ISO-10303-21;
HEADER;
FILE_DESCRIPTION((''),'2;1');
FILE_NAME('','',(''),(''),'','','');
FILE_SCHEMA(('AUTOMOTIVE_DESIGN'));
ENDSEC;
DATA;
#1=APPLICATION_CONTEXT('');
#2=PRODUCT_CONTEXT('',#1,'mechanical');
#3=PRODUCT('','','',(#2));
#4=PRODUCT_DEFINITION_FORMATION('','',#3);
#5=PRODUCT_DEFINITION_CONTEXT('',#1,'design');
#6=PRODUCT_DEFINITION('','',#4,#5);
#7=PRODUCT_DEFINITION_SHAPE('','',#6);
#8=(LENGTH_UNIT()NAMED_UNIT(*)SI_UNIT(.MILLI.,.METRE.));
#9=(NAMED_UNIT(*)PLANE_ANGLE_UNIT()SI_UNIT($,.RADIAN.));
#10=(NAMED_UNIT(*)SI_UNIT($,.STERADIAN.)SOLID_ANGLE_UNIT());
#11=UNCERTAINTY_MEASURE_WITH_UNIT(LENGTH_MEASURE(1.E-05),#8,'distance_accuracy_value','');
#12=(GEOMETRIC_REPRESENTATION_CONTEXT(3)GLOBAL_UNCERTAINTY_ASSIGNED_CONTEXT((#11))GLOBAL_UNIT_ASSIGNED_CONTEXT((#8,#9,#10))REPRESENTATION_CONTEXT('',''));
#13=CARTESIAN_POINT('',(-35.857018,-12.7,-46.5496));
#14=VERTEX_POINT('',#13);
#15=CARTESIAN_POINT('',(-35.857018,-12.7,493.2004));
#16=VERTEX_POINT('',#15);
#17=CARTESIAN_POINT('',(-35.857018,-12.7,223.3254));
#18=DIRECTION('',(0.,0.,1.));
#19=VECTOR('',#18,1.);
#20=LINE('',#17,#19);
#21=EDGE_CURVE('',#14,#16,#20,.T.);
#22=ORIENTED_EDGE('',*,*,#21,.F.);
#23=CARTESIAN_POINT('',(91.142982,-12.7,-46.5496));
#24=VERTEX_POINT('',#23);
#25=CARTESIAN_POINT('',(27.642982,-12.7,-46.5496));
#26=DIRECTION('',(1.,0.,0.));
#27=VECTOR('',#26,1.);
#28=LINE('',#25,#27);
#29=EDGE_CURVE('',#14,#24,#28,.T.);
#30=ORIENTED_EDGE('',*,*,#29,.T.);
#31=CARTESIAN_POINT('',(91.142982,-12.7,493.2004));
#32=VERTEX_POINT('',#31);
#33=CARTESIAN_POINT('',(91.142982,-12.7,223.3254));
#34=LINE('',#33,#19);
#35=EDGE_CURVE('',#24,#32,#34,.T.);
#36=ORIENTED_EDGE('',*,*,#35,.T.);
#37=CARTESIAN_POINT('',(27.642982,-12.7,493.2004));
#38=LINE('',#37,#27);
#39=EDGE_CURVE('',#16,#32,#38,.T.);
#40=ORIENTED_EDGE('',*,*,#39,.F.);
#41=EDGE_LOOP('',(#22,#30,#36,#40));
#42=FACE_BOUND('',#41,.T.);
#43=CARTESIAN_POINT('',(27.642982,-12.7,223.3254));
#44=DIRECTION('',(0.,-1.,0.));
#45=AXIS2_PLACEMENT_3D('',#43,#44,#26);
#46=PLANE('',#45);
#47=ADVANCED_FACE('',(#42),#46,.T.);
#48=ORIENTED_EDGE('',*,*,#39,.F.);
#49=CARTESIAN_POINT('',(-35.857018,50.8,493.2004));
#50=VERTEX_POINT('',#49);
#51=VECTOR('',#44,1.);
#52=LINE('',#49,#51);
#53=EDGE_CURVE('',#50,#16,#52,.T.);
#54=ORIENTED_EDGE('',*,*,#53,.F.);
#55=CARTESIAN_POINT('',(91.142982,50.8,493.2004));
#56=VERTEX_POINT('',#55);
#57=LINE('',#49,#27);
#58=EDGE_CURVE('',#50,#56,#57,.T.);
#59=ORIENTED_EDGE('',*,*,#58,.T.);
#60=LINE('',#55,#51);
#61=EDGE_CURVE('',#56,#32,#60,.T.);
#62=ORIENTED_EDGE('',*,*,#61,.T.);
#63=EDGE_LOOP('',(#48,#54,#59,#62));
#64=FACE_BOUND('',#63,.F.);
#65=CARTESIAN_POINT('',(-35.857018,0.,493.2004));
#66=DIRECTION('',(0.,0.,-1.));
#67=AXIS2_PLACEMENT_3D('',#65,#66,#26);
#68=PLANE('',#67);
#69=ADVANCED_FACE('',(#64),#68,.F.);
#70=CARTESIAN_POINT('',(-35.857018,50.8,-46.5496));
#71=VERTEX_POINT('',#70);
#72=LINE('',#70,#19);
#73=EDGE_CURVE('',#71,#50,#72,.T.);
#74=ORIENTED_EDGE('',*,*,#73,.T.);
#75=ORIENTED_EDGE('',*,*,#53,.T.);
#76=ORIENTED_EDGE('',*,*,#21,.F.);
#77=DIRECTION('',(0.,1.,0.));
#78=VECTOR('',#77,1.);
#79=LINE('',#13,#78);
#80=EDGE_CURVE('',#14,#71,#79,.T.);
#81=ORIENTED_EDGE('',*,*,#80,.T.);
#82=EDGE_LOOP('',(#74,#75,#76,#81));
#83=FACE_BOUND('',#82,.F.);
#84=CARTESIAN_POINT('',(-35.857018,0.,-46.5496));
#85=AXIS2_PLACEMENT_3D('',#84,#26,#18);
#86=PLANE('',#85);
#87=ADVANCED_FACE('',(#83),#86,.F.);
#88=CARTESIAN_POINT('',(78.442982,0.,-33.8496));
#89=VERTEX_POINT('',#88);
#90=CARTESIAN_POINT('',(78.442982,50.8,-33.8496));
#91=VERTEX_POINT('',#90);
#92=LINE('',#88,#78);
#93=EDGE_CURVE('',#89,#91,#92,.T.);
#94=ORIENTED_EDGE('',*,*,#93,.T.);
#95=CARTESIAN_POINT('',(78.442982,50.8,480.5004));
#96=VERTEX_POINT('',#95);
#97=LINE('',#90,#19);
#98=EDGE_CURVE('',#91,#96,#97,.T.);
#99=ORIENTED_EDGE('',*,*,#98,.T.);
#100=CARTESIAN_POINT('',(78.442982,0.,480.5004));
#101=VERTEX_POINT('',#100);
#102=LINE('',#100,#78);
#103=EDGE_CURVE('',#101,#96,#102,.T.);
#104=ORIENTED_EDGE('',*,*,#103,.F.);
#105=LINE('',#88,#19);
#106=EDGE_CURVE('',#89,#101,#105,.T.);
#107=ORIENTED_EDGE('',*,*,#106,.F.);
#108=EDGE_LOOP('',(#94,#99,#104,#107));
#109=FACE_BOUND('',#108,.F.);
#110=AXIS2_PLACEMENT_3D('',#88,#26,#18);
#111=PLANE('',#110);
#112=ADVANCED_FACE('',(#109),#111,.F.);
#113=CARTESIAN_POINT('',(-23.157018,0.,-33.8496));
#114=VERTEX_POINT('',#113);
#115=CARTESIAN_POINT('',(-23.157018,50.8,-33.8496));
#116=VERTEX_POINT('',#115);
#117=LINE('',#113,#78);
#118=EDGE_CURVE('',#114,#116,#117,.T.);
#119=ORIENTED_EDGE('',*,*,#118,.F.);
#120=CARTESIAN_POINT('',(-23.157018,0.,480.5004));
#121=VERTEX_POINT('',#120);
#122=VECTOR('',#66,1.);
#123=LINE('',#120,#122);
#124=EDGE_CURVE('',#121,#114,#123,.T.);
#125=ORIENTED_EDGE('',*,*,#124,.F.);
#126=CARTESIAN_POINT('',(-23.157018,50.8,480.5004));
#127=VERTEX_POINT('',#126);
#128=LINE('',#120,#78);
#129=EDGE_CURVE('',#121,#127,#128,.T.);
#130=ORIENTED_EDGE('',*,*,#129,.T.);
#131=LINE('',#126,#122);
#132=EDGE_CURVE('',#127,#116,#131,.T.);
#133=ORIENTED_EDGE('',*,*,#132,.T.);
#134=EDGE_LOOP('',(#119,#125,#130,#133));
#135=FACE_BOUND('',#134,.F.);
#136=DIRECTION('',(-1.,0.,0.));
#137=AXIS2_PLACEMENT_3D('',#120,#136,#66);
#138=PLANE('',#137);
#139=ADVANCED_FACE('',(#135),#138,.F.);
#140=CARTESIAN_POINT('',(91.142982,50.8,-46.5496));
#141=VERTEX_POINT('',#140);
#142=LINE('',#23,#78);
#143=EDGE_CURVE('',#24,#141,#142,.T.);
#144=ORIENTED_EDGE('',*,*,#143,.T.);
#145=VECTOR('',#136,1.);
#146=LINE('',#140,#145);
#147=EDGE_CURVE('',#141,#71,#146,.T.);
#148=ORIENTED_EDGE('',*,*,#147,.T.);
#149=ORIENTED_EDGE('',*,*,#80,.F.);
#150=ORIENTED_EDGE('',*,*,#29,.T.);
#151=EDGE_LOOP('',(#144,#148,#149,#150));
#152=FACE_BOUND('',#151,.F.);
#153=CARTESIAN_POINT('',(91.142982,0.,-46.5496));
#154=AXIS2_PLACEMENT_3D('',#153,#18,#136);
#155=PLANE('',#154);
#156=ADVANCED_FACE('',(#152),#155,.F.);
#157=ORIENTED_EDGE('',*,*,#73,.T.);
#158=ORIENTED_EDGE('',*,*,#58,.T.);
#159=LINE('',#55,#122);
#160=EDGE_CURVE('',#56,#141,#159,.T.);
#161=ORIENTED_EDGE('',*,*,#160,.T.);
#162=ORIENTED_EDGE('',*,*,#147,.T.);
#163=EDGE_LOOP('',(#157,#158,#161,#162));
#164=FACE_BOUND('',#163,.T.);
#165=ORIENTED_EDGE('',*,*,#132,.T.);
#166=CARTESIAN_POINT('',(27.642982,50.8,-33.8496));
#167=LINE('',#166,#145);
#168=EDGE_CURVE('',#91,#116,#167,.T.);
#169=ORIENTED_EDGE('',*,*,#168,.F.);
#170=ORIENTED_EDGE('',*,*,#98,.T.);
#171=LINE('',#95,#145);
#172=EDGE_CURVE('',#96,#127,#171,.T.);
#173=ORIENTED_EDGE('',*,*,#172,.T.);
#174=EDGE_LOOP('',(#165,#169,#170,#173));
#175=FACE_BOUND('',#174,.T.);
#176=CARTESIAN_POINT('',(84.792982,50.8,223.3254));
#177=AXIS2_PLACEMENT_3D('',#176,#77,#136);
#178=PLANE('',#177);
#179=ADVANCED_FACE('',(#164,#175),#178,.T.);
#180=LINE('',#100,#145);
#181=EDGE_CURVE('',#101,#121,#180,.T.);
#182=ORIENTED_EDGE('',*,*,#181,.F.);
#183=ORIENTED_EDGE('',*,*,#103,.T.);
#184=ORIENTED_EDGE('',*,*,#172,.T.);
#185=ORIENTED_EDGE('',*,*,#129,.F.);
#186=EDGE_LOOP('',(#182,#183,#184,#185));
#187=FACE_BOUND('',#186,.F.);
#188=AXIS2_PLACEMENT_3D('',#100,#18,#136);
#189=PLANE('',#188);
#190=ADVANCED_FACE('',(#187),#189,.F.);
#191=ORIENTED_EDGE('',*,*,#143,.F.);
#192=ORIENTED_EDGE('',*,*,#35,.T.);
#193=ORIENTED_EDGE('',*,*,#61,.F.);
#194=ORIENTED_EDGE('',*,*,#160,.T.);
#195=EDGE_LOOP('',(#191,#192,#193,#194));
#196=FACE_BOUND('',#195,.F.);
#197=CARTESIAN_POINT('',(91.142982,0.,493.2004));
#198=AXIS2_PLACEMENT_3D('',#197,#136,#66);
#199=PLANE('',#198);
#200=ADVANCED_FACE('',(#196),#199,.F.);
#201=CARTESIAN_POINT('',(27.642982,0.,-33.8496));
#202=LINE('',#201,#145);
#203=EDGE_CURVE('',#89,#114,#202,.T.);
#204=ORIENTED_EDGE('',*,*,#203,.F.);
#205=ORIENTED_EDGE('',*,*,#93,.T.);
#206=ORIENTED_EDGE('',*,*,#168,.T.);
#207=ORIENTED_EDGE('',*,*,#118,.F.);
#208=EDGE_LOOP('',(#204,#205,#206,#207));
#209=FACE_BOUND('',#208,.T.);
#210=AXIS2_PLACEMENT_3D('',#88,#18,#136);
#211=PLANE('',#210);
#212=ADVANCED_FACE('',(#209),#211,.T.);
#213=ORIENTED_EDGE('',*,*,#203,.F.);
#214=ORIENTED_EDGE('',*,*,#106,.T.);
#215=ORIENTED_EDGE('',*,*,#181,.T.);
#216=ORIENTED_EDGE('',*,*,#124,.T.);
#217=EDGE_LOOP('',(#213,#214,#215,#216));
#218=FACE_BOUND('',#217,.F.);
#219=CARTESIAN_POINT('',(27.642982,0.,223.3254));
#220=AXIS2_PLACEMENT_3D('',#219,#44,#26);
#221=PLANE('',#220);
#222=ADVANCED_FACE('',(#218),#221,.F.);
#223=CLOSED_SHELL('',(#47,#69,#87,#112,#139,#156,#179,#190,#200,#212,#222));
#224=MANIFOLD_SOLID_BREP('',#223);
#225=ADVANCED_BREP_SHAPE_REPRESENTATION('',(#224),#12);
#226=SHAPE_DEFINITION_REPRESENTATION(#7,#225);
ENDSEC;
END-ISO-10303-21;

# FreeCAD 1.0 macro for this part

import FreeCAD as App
import Part
import Sketcher
Q = App.Units.Quantity

doc = App.newDocument("Part")
body = doc.addObject("PartDesign::Body", "Body")

# Sketch on XZ plane
sketch1 = body.newObject("Sketcher::SketchObject", "Sketch")
sketch1.AttachmentSupport = (doc.getObject("XZ_Plane"), [""])
sketch1.MapMode = "FlatFace"
sketch1.addGeometry(Part.LineSegment(App.Vector(-35.857018, 493.2004, 0), App.Vector(-35.857018, -46.5496, 0)), False)
sketch1.addGeometry(Part.LineSegment(App.Vector(-35.857018, -46.5496, 0), App.Vector(91.142982, -46.5496, 0)), False)
sketch1.addGeometry(Part.LineSegment(App.Vector(91.142982, -46.5496, 0), App.Vector(91.142982, 493.2004, 0)), False)
sketch1.addGeometry(Part.LineSegment(App.Vector(91.142982, 493.2004, 0), App.Vector(-35.857018, 493.2004, 0)), False)
sketch1.addConstraint(Sketcher.Constraint("Coincident", 0, 2, 1, 1))
sketch1.addConstraint(Sketcher.Constraint("Coincident", 1, 2, 2, 1))
sketch1.addConstraint(Sketcher.Constraint("Coincident", 2, 2, 3, 1))
sketch1.addConstraint(Sketcher.Constraint("Coincident", 3, 2, 0, 1))
sketch1.addConstraint(Sketcher.Constraint("Vertical", 0))
sketch1.addConstraint(Sketcher.Constraint("Horizontal", 1))
sketch1.addConstraint(Sketcher.Constraint("Vertical", 2))
sketch1.addConstraint(Sketcher.Constraint("Horizontal", 3))
sketch1.addConstraint(Sketcher.Constraint("DistanceX", 1, 1, 1, 2, Q("5 in")))
sketch1.addConstraint(Sketcher.Constraint("DistanceY", 0, 2, 0, 1, Q("21.25 in")))
sketch1.addConstraint(Sketcher.Constraint("DistanceY", 0, 2, -1, 1, Q("46.5496 mm")))
sketch1.addConstraint(Sketcher.Constraint("DistanceX", 0, 2, -1, 1, Q("35.857018 mm")))
pad1 = body.newObject("PartDesign::Pad", "Pad")
pad1.Profile = sketch1
pad1.Length = Q("0.5 in")

# Sketch on XZ plane
sketch2 = body.newObject("Sketcher::SketchObject", "Sketch001")
sketch2.AttachmentSupport = (doc.getObject("XZ_Plane"), [""])
sketch2.MapMode = "FlatFace"
sketch2.addGeometry(Part.LineSegment(App.Vector(91.142982, 493.2004, 0), App.Vector(91.142982, -46.5496, 0)), False)
sketch2.addGeometry(Part.LineSegment(App.Vector(91.142982, -46.5496, 0), App.Vector(-35.857018, -46.5496, 0)), False)
sketch2.addGeometry(Part.LineSegment(App.Vector(-35.857018, -46.5496, 0), App.Vector(-35.857018, 493.2004, 0)), False)
sketch2.addGeometry(Part.LineSegment(App.Vector(-35.857018, 493.2004, 0), App.Vector(91.142982, 493.2004, 0)), False)
sketch2.addGeometry(Part.LineSegment(App.Vector(-23.157018, -33.8496, 0), App.Vector(78.442982, -33.8496, 0)), False)
sketch2.addGeometry(Part.LineSegment(App.Vector(78.442982, -33.8496, 0), App.Vector(78.442982, 480.5004, 0)), False)
sketch2.addGeometry(Part.LineSegment(App.Vector(78.442982, 480.5004, 0), App.Vector(-23.157018, 480.5004, 0)), False)
sketch2.addGeometry(Part.LineSegment(App.Vector(-23.157018, 480.5004, 0), App.Vector(-23.157018, -33.8496, 0)), False)
sketch2.addConstraint(Sketcher.Constraint("Coincident", 0, 2, 1, 1))
sketch2.addConstraint(Sketcher.Constraint("Coincident", 1, 2, 2, 1))
sketch2.addConstraint(Sketcher.Constraint("Coincident", 2, 2, 3, 1))
sketch2.addConstraint(Sketcher.Constraint("Coincident", 3, 2, 0, 1))
sketch2.addConstraint(Sketcher.Constraint("Coincident", 4, 2, 5, 1))
sketch2.addConstraint(Sketcher.Constraint("Coincident", 5, 2, 6, 1))
sketch2.addConstraint(Sketcher.Constraint("Coincident", 6, 2, 7, 1))
sketch2.addConstraint(Sketcher.Constraint("Coincident", 7, 2, 4, 1))
sketch2.addConstraint(Sketcher.Constraint("Vertical", 0))
sketch2.addConstraint(Sketcher.Constraint("Horizontal", 1))
sketch2.addConstraint(Sketcher.Constraint("Vertical", 2))
sketch2.addConstraint(Sketcher.Constraint("Horizontal", 3))
sketch2.addConstraint(Sketcher.Constraint("Horizontal", 4))
sketch2.addConstraint(Sketcher.Constraint("Vertical", 5))
sketch2.addConstraint(Sketcher.Constraint("Horizontal", 6))
sketch2.addConstraint(Sketcher.Constraint("Vertical", 7))
sketch2.addConstraint(Sketcher.Constraint("DistanceX", 1, 2, 1, 1, Q("5 in")))
sketch2.addConstraint(Sketcher.Constraint("DistanceX", 4, 1, 4, 2, Q("4 in")))
sketch2.addConstraint(Sketcher.Constraint("DistanceY", 0, 2, 0, 1, Q("21.25 in")))
sketch2.addConstraint(Sketcher.Constraint("DistanceY", 5, 1, 5, 2, Q("20.25 in")))
sketch2.addConstraint(Sketcher.Constraint("DistanceX", 4, 2, 0, 2, Q("0.5 in")))
sketch2.addConstraint(Sketcher.Constraint("DistanceY", 0, 2, 4, 2, Q("0.5 in")))
sketch2.addConstraint(Sketcher.Constraint("DistanceY", 0, 2, -1, 1, Q("46.5496 mm")))
sketch2.addConstraint(Sketcher.Constraint("DistanceX", -1, 1, 4, 2, Q("78.442982 mm")))
pad2 = body.newObject("PartDesign::Pad", "Pad001")
pad2.Profile = sketch2
pad2.Length = Q("2 in")
pad2.Reversed = True

doc.recompute()
